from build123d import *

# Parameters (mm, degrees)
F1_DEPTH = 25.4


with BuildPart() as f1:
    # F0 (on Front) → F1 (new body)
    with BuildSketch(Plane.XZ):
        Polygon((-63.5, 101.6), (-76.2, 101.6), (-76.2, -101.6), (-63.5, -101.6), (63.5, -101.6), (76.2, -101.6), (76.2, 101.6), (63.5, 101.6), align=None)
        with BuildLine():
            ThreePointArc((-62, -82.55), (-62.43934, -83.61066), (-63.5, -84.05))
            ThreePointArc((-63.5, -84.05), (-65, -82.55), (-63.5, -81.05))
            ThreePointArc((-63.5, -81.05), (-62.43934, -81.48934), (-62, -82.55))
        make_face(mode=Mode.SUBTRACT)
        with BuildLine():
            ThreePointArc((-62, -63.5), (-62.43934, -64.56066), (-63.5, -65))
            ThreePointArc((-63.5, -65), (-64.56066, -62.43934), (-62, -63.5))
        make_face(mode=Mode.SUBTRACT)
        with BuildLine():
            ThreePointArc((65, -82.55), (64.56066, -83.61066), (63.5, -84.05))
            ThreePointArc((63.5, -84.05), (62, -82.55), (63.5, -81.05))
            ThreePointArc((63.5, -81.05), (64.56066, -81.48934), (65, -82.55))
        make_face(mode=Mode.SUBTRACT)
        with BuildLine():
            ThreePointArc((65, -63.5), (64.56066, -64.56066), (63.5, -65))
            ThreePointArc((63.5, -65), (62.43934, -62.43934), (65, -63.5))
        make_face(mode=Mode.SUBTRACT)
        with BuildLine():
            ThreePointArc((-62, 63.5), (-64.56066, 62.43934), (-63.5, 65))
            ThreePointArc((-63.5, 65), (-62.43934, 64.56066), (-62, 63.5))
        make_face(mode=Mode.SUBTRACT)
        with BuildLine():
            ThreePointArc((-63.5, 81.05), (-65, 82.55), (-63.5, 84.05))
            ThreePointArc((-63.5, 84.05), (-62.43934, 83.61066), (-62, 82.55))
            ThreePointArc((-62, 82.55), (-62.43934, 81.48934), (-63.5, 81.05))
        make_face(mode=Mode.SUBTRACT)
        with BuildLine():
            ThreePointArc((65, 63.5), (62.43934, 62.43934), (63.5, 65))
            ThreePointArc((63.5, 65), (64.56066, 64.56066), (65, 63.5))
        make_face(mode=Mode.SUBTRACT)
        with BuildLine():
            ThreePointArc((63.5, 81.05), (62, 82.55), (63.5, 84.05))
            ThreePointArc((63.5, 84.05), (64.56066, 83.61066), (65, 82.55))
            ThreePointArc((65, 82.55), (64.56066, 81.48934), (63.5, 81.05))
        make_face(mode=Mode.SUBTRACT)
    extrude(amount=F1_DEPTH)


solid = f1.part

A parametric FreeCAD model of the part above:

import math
import FreeCAD as App
import Part
import Sketcher
from FreeCAD import Vector
Q = App.Units.Quantity


def add_polygon(sketch, points):
    """Adds a closed chain of lines whose ends are joined by coincident constraints."""
    first, n = sketch.GeometryCount, len(points)
    for a, b in zip(points, points[1:] + points[:1]):
        sketch.addGeometry(Part.LineSegment(App.Vector(*a, 0), App.Vector(*b, 0)), False)
    for i in range(n):
        sketch.addConstraint(Sketcher.Constraint("Coincident", first + i, 2, first + (i + 1) % n, 1))

doc = App.newDocument("Part")
params = doc.addObject("Spreadsheet::Sheet", "Params")
for row, (alias, value) in enumerate([
    ("sketch1_width", "6 in"),
    ("sketch1_height", "8 in"),
    ("pad1_length", "1 in"),
], start=1):
    params.set(f"A{row}", alias)
    params.set(f"B{row}", "=" + value)
    params.setAlias(f"B{row}", alias)

body = doc.addObject("PartDesign::Body", "Body")

# Sketch on XZ plane
sketch1 = body.newObject("Sketcher::SketchObject", "Sketch")
sketch1.AttachmentSupport = (doc.getObject("XZ_Plane"), [""])
sketch1.MapMode = "FlatFace"
add_polygon(sketch1, [(-76.2, 101.6), (-76.2, -101.6), (76.2, -101.6), (76.2, 101.6)])  # lines 0-3
sketch1.addGeometry(Part.ArcOfCircle(Part.Circle(Vector(-63.5, -82.6, 0), Vector(0, 0, 1), 1.5), math.radians(0), math.radians(90)), False)  # 4
sketch1.addGeometry(Part.ArcOfCircle(Part.Circle(Vector(-63.5, -82.5, 0), Vector(0, 0, 1), 1.5), math.radians(-90), math.radians(0)), False)  # 5
sketch1.addGeometry(Part.ArcOfCircle(Part.Circle(Vector(-63.5, -82.5, 0), Vector(0, 0, 1), 1.5), math.radians(90), math.radians(270)), False)  # 6
sketch1.addGeometry(Part.ArcOfCircle(Part.Circle(Vector(-63.5, -63.5, 0), Vector(0, 0, 1), 1.5), math.radians(0), math.radians(270)), False)  # 7
sketch1.addGeometry(Part.ArcOfCircle(Part.Circle(Vector(-63.5, -63.5, 0), Vector(0, 0, 1), 1.5), math.radians(-90), math.radians(0)), False)  # 8
sketch1.addGeometry(Part.ArcOfCircle(Part.Circle(Vector(63.5, -82.6, 0), Vector(0, 0, 1), 1.5), math.radians(0), math.radians(90)), False)  # 9
sketch1.addGeometry(Part.ArcOfCircle(Part.Circle(Vector(63.5, -82.5, 0), Vector(0, 0, 1), 1.5), math.radians(-90), math.radians(0)), False)  # 10
sketch1.addGeometry(Part.ArcOfCircle(Part.Circle(Vector(63.5, -82.5, 0), Vector(0, 0, 1), 1.5), math.radians(90), math.radians(270)), False)  # 11
sketch1.addGeometry(Part.ArcOfCircle(Part.Circle(Vector(63.5, -63.5, 0), Vector(0, 0, 1), 1.5), math.radians(0), math.radians(270)), False)  # 12
sketch1.addGeometry(Part.ArcOfCircle(Part.Circle(Vector(63.5, -63.5, 0), Vector(0, 0, 1), 1.5), math.radians(-90), math.radians(0)), False)  # 13
sketch1.addGeometry(Part.ArcOfCircle(Part.Circle(Vector(-63.5, 63.5, 0), Vector(0, 0, 1), 1.5), math.radians(0), math.radians(90)), False)  # 14
sketch1.addGeometry(Part.ArcOfCircle(Part.Circle(Vector(-63.5, 63.5, 0), Vector(0, 0, 1), 1.5), math.radians(90), math.radians(360)), False)  # 15
sketch1.addGeometry(Part.ArcOfCircle(Part.Circle(Vector(-63.5, 82.6, 0), Vector(0, 0, 1), 1.5), math.radians(-90), math.radians(0)), False)  # 16
sketch1.addGeometry(Part.ArcOfCircle(Part.Circle(Vector(-63.5, 82.5, 0), Vector(0, 0, 1), 1.5), math.radians(90), math.radians(270)), False)  # 17
sketch1.addGeometry(Part.ArcOfCircle(Part.Circle(Vector(-63.5, 82.5, 0), Vector(0, 0, 1), 1.5), math.radians(0), math.radians(90)), False)  # 18
sketch1.addGeometry(Part.ArcOfCircle(Part.Circle(Vector(63.5, 63.5, 0), Vector(0, 0, 1), 1.5), math.radians(0), math.radians(90)), False)  # 19
sketch1.addGeometry(Part.ArcOfCircle(Part.Circle(Vector(63.5, 63.5, 0), Vector(0, 0, 1), 1.5), math.radians(90), math.radians(360)), False)  # 20
sketch1.addGeometry(Part.ArcOfCircle(Part.Circle(Vector(63.5, 82.6, 0), Vector(0, 0, 1), 1.5), math.radians(-90), math.radians(0)), False)  # 21
sketch1.addGeometry(Part.ArcOfCircle(Part.Circle(Vector(63.5, 82.5, 0), Vector(0, 0, 1), 1.5), math.radians(90), math.radians(270)), False)  # 22
sketch1.addGeometry(Part.ArcOfCircle(Part.Circle(Vector(63.5, 82.5, 0), Vector(0, 0, 1), 1.5), math.radians(0), math.radians(90)), False)  # 23
sketch1.addConstraint(Sketcher.Constraint("Tangent", 4, 1, 5, 2))
sketch1.addConstraint(Sketcher.Constraint("Tangent", 5, 1, 6, 2))
sketch1.addConstraint(Sketcher.Constraint("Tangent", 6, 1, 4, 2))
sketch1.addConstraint(Sketcher.Constraint("Tangent", 7, 1, 8, 2))
sketch1.addConstraint(Sketcher.Constraint("Coincident", 8, 1, 7, 2))
sketch1.addConstraint(Sketcher.Constraint("Tangent", 9, 1, 10, 2))
sketch1.addConstraint(Sketcher.Constraint("Tangent", 10, 1, 11, 2))
sketch1.addConstraint(Sketcher.Constraint("Tangent", 11, 1, 9, 2))
sketch1.addConstraint(Sketcher.Constraint("Tangent", 12, 1, 13, 2))
sketch1.addConstraint(Sketcher.Constraint("Coincident", 13, 1, 12, 2))
sketch1.addConstraint(Sketcher.Constraint("Tangent", 14, 1, 15, 2))
sketch1.addConstraint(Sketcher.Constraint("Coincident", 15, 1, 14, 2))
sketch1.addConstraint(Sketcher.Constraint("Tangent", 16, 1, 17, 2))
sketch1.addConstraint(Sketcher.Constraint("Tangent", 17, 1, 18, 2))
sketch1.addConstraint(Sketcher.Constraint("Tangent", 18, 1, 16, 2))
sketch1.addConstraint(Sketcher.Constraint("Tangent", 19, 1, 20, 2))
sketch1.addConstraint(Sketcher.Constraint("Coincident", 20, 1, 19, 2))
sketch1.addConstraint(Sketcher.Constraint("Tangent", 21, 1, 22, 2))
sketch1.addConstraint(Sketcher.Constraint("Tangent", 22, 1, 23, 2))
sketch1.addConstraint(Sketcher.Constraint("Tangent", 23, 1, 21, 2))
sketch1.addConstraint(Sketcher.Constraint("Vertical", 0))
sketch1.addConstraint(Sketcher.Constraint("Horizontal", 1))
sketch1.addConstraint(Sketcher.Constraint("Vertical", 2))
sketch1.addConstraint(Sketcher.Constraint("Horizontal", 3))
sketch1.addConstraint(Sketcher.Constraint("Equal", 6, 7))
sketch1.addConstraint(Sketcher.Constraint("Equal", 8, 9))
sketch1.addConstraint(Sketcher.Constraint("Equal", 11, 12))
sketch1.addConstraint(Sketcher.Constraint("Equal", 13, 14))
sketch1.addConstraint(Sketcher.Constraint("Equal", 15, 16))
sketch1.addConstraint(Sketcher.Constraint("Equal", 18, 19))
sketch1.addConstraint(Sketcher.Constraint("Equal", 20, 21))
sketch1.addConstraint(Sketcher.Constraint("Symmetric", 12, 3, 14, 3, -1, 1))
sketch1.addConstraint(Sketcher.Constraint("Symmetric", 9, 3, 16, 3, -1, 1))
sketch1.addConstraint(Sketcher.Constraint("Symmetric", 7, 3, 19, 3, -1, 1))
sketch1.addConstraint(Sketcher.Constraint("Symmetric", 4, 3, 21, 3, -1, 1))
sketch1.addConstraint(Sketcher.Constraint("Symmetric", 0, 2, 2, 2, -1, 1))
sketch1.addConstraint(Sketcher.Constraint("Symmetric", 4, 3, 9, 3, -2))
sketch1.addConstraint(Sketcher.Constraint("Symmetric", 7, 3, 12, 3, -2))
sketch1.addConstraint(Sketcher.Constraint("Horizontal", 11, 3, 4, 1))
sketch1.addConstraint(Sketcher.Constraint("Horizontal", 13, 3, 7, 1))
sketch1.addConstraint(Sketcher.Constraint("Horizontal", 4, 1, 9, 1))
sketch1.addConstraint(Sketcher.Constraint("Horizontal", 7, 1, 12, 1))
sketch1.addConstraint(Sketcher.Constraint("Horizontal", 20, 3, 14, 1))
sketch1.addConstraint(Sketcher.Constraint("Horizontal", 23, 3, 18, 1))
sketch1.addConstraint(Sketcher.Constraint("Horizontal", 14, 1, 19, 1))
sketch1.addConstraint(Sketcher.Constraint("Horizontal", 18, 1, 23, 1))
sketch1.addConstraint(Sketcher.Constraint("Vertical", 6, 3, 7, 3))
sketch1.addConstraint(Sketcher.Constraint("Vertical", 18, 3, 5, 1))
sketch1.addConstraint(Sketcher.Constraint("Vertical", 5, 1, 6, 1))
sketch1.addConstraint(Sketcher.Constraint("Vertical", 6, 1, 8, 1))
sketch1.addConstraint(Sketcher.Constraint("Vertical", 23, 3, 10, 1))
sketch1.addConstraint(Sketcher.Constraint("Vertical", 10, 1, 11, 1))
sketch1.addConstraint(Sketcher.Constraint("Vertical", 11, 1, 13, 1))
sketch1.addConstraint(Sketcher.Constraint("Vertical", 8, 1, 15, 1))
sketch1.addConstraint(Sketcher.Constraint("Vertical", 15, 1, 16, 1))
sketch1.addConstraint(Sketcher.Constraint("Vertical", 16, 1, 17, 1))
sketch1.addConstraint(Sketcher.Constraint("Vertical", 13, 1, 20, 1))
sketch1.addConstraint(Sketcher.Constraint("Vertical", 20, 1, 21, 1))
sketch1.addConstraint(Sketcher.Constraint("Vertical", 21, 1, 22, 1))
sketch1.addConstraint(Sketcher.Constraint("DistanceX", 1, 1, 1, 2, Q("6 in")))
sketch1.addConstraint(Sketcher.Constraint("DistanceY", 0, 2, 0, 1, Q("8 in")))
sketch1.addConstraint(Sketcher.Constraint("DistanceX", 6, 3, 9, 3, Q("5 in")))
sketch1.addConstraint(Sketcher.Constraint("DistanceY", 8, 3, 14, 3, Q("5 in")))
sketch1.addConstraint(Sketcher.Constraint("DistanceY", 5, 3, 16, 3, Q("6.5 in")))
sketch1.addConstraint(Sketcher.Constraint("Radius", 4, 1.500001))
sketch1.setExpression("Constraints[63]", "Params.sketch1_width")
sketch1.setExpression("Constraints[64]", "Params.sketch1_height")
pad1 = body.newObject("PartDesign::Pad", "Pad")
pad1.Profile = sketch1
pad1.setExpression("Length", "Params.pad1_length")

doc.recompute()
